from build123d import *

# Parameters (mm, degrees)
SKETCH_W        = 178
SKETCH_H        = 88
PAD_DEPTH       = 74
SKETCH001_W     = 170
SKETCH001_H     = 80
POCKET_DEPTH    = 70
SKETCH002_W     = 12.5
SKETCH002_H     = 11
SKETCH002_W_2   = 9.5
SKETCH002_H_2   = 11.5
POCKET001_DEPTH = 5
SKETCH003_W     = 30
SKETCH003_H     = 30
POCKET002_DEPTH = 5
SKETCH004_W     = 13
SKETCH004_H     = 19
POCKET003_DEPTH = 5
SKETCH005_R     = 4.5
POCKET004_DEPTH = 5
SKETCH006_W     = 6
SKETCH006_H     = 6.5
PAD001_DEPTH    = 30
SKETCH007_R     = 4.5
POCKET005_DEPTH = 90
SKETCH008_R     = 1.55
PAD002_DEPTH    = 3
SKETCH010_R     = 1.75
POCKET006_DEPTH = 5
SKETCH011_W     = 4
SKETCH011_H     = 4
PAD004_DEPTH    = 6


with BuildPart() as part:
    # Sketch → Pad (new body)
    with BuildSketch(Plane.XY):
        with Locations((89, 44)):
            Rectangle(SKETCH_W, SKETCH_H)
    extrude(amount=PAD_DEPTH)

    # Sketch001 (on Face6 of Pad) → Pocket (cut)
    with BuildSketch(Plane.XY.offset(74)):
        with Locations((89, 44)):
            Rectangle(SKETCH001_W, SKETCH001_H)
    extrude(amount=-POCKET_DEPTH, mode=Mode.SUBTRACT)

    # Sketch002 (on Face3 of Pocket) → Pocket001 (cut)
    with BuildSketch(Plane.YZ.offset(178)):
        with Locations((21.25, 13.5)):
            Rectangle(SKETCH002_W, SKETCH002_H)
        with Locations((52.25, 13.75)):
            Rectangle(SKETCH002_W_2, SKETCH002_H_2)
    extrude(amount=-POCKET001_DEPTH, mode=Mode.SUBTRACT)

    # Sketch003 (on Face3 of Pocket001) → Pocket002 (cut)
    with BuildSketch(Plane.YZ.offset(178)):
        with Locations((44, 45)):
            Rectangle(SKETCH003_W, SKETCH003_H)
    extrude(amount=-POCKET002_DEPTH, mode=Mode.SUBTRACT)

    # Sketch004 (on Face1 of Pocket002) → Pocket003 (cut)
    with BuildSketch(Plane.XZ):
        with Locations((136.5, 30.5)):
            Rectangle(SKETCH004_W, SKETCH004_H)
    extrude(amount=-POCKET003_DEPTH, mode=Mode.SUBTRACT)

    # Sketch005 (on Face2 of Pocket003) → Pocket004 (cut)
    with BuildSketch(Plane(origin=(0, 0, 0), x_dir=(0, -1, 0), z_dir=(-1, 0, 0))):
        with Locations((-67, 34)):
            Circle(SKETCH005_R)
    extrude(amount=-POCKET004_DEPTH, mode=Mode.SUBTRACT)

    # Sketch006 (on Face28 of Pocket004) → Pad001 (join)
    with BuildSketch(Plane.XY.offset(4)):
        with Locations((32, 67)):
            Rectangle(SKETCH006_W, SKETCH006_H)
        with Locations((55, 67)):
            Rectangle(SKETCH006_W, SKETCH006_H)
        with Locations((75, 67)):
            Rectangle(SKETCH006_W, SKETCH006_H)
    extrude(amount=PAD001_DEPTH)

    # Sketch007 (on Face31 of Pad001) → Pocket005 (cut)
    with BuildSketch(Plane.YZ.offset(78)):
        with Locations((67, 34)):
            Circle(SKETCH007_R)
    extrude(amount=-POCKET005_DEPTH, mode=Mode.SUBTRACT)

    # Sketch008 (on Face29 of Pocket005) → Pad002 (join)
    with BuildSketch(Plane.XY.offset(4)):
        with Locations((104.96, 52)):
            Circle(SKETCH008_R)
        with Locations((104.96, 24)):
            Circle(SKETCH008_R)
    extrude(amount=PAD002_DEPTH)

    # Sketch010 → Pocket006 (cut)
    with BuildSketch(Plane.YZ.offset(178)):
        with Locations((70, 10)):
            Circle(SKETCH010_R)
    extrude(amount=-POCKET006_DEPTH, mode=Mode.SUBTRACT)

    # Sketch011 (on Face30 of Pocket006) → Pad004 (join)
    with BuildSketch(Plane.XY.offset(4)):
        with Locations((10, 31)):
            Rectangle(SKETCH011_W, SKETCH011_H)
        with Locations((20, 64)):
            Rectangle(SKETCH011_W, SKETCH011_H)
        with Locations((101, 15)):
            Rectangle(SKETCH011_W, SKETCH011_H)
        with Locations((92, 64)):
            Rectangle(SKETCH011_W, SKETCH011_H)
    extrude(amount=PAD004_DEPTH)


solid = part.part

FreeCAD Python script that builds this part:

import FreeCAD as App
import Part
import Sketcher
Q = App.Units.Quantity

doc = App.newDocument("Part")
body = doc.addObject("PartDesign::Body", "Body")

# Sketch on XY plane
sketch1 = doc.addObject("Sketcher::SketchObject", "Sketch")
body.addObject(sketch1)
sketch1.AttachmentSupport = (doc.XY_Plane, [""])
sketch1.MapMode = "FlatFace"
sketch1.addGeometry([
    Part.LineSegment(App.Vector(0, 88, 0), App.Vector(0, 0, 0)),
    Part.LineSegment(App.Vector(0, 0, 0), App.Vector(178, 0, 0)),
    Part.LineSegment(App.Vector(178, 0, 0), App.Vector(178, 88, 0)),
    Part.LineSegment(App.Vector(178, 88, 0), App.Vector(0, 88, 0)),
], False)
sketch1.addConstraint([
    Sketcher.Constraint("Coincident", 0, 2, 1, 1),
    Sketcher.Constraint("Coincident", 1, 2, 2, 1),
    Sketcher.Constraint("Coincident", 2, 2, 3, 1),
    Sketcher.Constraint("Coincident", 3, 2, 0, 1),
    Sketcher.Constraint("Vertical", 0),
    Sketcher.Constraint("Horizontal", 1),
    Sketcher.Constraint("Vertical", 2),
    Sketcher.Constraint("Horizontal", 3),
    Sketcher.Constraint("Coincident", 0, 2, -1, 1),
    Sketcher.Constraint("DistanceX", 1, 1, 1, 2, Q("178 mm")),
    Sketcher.Constraint("DistanceY", 0, 2, 0, 1, Q("88 mm")),
])
pad1 = doc.addObject("PartDesign::Pad", "Pad")
body.addObject(pad1)
pad1.Profile = sketch1
pad1.Length = 74

# Sketch on XY plane
sketch2 = doc.addObject("Sketcher::SketchObject", "Sketch001")
body.addObject(sketch2)
sketch2.AttachmentSupport = (doc.XY_Plane, [""])
sketch2.MapMode = "FlatFace"
sketch2.AttachmentOffset = App.Placement(App.Vector(0, 0, 74), App.Rotation())
sketch2.addGeometry([
    Part.LineSegment(App.Vector(4, 84, 0), App.Vector(4, 4, 0)),
    Part.LineSegment(App.Vector(4, 4, 0), App.Vector(174, 4, 0)),
    Part.LineSegment(App.Vector(174, 4, 0), App.Vector(174, 84, 0)),
    Part.LineSegment(App.Vector(174, 84, 0), App.Vector(4, 84, 0)),
], False)
sketch2.addConstraint([
    Sketcher.Constraint("Coincident", 0, 2, 1, 1),
    Sketcher.Constraint("Coincident", 1, 2, 2, 1),
    Sketcher.Constraint("Coincident", 2, 2, 3, 1),
    Sketcher.Constraint("Coincident", 3, 2, 0, 1),
    Sketcher.Constraint("Vertical", 0),
    Sketcher.Constraint("Horizontal", 1),
    Sketcher.Constraint("Vertical", 2),
    Sketcher.Constraint("Horizontal", 3),
    Sketcher.Constraint("DistanceX", 1, 1, 1, 2, Q("170 mm")),
    Sketcher.Constraint("DistanceY", 0, 2, 0, 1, Q("80 mm")),
    Sketcher.Constraint("DistanceX", -1, 1, 0, 2, Q("4 mm")),
    Sketcher.Constraint("DistanceY", -1, 1, 0, 2, Q("4 mm")),
])
pocket1 = doc.addObject("PartDesign::Pocket", "Pocket")
body.addObject(pocket1)
pocket1.Profile = sketch2
pocket1.Length = 70

# Sketch on YZ plane
sketch3 = doc.addObject("Sketcher::SketchObject", "Sketch002")
body.addObject(sketch3)
sketch3.AttachmentSupport = (doc.YZ_Plane, [""])
sketch3.MapMode = "FlatFace"
sketch3.AttachmentOffset = App.Placement(App.Vector(0, 0, 178), App.Rotation())
sketch3.addGeometry([
    Part.LineSegment(App.Vector(15, 19, 0), App.Vector(15, 8, 0)),  # 0
    Part.LineSegment(App.Vector(15, 8, 0), App.Vector(28, 8, 0)),  # 1
    Part.LineSegment(App.Vector(28, 8, 0), App.Vector(28, 19, 0)),  # 2
    Part.LineSegment(App.Vector(28, 19, 0), App.Vector(15, 19, 0)),  # 3
    Part.LineSegment(App.Vector(48, 20, 0), App.Vector(48, 8, 0)),  # 4
    Part.LineSegment(App.Vector(48, 8, 0), App.Vector(57, 8, 0)),  # 5
    Part.LineSegment(App.Vector(57, 8, 0), App.Vector(57, 20, 0)),  # 6
    Part.LineSegment(App.Vector(57, 20, 0), App.Vector(48, 20, 0)),  # 7
], False)
sketch3.addConstraint([
    Sketcher.Constraint("Coincident", 0, 2, 1, 1),
    Sketcher.Constraint("Coincident", 1, 2, 2, 1),
    Sketcher.Constraint("Coincident", 2, 2, 3, 1),
    Sketcher.Constraint("Coincident", 3, 2, 0, 1),
    Sketcher.Constraint("Coincident", 4, 2, 5, 1),
    Sketcher.Constraint("Coincident", 5, 2, 6, 1),
    Sketcher.Constraint("Coincident", 6, 2, 7, 1),
    Sketcher.Constraint("Coincident", 7, 2, 4, 1),
    Sketcher.Constraint("Vertical", 0),
    Sketcher.Constraint("Horizontal", 1),
    Sketcher.Constraint("Vertical", 2),
    Sketcher.Constraint("Horizontal", 3),
    Sketcher.Constraint("Vertical", 4),
    Sketcher.Constraint("Horizontal", 5),
    Sketcher.Constraint("Vertical", 6),
    Sketcher.Constraint("Horizontal", 7),
    Sketcher.Constraint("Horizontal", 1, 2, 4, 2),
    Sketcher.Constraint("DistanceY", 0, 2, 0, 1, Q("11 mm")),
    Sketcher.Constraint("DistanceX", 1, 1, 1, 2, Q("12.5 mm")),
    Sketcher.Constraint("DistanceX", 5, 1, 5, 2, Q("9.5 mm")),
    Sketcher.Constraint("DistanceY", 4, 2, 4, 1, Q("11.5 mm")),
    Sketcher.Constraint("DistanceX", -1, 1, 0, 2, Q("15 mm")),
    Sketcher.Constraint("DistanceY", -1, 1, 0, 2, Q("8 mm")),
    Sketcher.Constraint("DistanceX", -1, 1, 5, 2, Q("57 mm")),
])
pocket2 = doc.addObject("PartDesign::Pocket", "Pocket001")
body.addObject(pocket2)
pocket2.Profile = sketch3
pocket2.Length = 5

# Sketch on YZ plane
sketch4 = doc.addObject("Sketcher::SketchObject", "Sketch003")
body.addObject(sketch4)
sketch4.AttachmentSupport = (doc.YZ_Plane, [""])
sketch4.MapMode = "FlatFace"
sketch4.AttachmentOffset = App.Placement(App.Vector(0, 0, 178), App.Rotation())
sketch4.addGeometry([
    Part.LineSegment(App.Vector(29, 60, 0), App.Vector(29, 30, 0)),
    Part.LineSegment(App.Vector(29, 30, 0), App.Vector(59, 30, 0)),
    Part.LineSegment(App.Vector(59, 30, 0), App.Vector(59, 60, 0)),
    Part.LineSegment(App.Vector(59, 60, 0), App.Vector(29, 60, 0)),
], False)
sketch4.addConstraint([
    Sketcher.Constraint("Coincident", 0, 2, 1, 1),
    Sketcher.Constraint("Coincident", 1, 2, 2, 1),
    Sketcher.Constraint("Coincident", 2, 2, 3, 1),
    Sketcher.Constraint("Coincident", 3, 2, 0, 1),
    Sketcher.Constraint("Vertical", 0),
    Sketcher.Constraint("Horizontal", 1),
    Sketcher.Constraint("Vertical", 2),
    Sketcher.Constraint("Horizontal", 3),
    Sketcher.Constraint("Equal", 3, 0),
    Sketcher.Constraint("DistanceX", 1, 1, 1, 2, Q("30 mm")),
    Sketcher.Constraint("DistanceX", -1, 1, 0, 2, Q("29 mm")),
    Sketcher.Constraint("DistanceY", -1, 1, 0, 2, Q("30 mm")),
])
pocket3 = doc.addObject("PartDesign::Pocket", "Pocket002")
body.addObject(pocket3)
pocket3.Profile = sketch4
pocket3.Length = 5

# Sketch on XZ plane
sketch5 = doc.addObject("Sketcher::SketchObject", "Sketch004")
body.addObject(sketch5)
sketch5.AttachmentSupport = (doc.XZ_Plane, [""])
sketch5.MapMode = "FlatFace"
sketch5.addGeometry([
    Part.LineSegment(App.Vector(130, 40, 0), App.Vector(130, 21, 0)),
    Part.LineSegment(App.Vector(130, 21, 0), App.Vector(143, 21, 0)),
    Part.LineSegment(App.Vector(143, 21, 0), App.Vector(143, 40, 0)),
    Part.LineSegment(App.Vector(143, 40, 0), App.Vector(130, 40, 0)),
], False)
sketch5.addConstraint([
    Sketcher.Constraint("Coincident", 0, 2, 1, 1),
    Sketcher.Constraint("Coincident", 1, 2, 2, 1),
    Sketcher.Constraint("Coincident", 2, 2, 3, 1),
    Sketcher.Constraint("Coincident", 3, 2, 0, 1),
    Sketcher.Constraint("Vertical", 0),
    Sketcher.Constraint("Horizontal", 1),
    Sketcher.Constraint("Vertical", 2),
    Sketcher.Constraint("Horizontal", 3),
    Sketcher.Constraint("DistanceX", 1, 1, 1, 2, Q("13 mm")),
    Sketcher.Constraint("DistanceY", 0, 2, 0, 1, Q("19 mm")),
    Sketcher.Constraint("DistanceX", -1, 1, 0, 2, Q("130 mm")),
    Sketcher.Constraint("DistanceY", -1, 1, 0, 2, Q("21 mm")),
])
pocket4 = doc.addObject("PartDesign::Pocket", "Pocket003")
body.addObject(pocket4)
pocket4.Profile = sketch5
pocket4.Length = 5

# Sketch on YZ plane
sketch6 = doc.addObject("Sketcher::SketchObject", "Sketch005")
body.addObject(sketch6)
sketch6.AttachmentSupport = (doc.YZ_Plane, [""])
sketch6.MapMode = "FlatFace"
sketch6.addGeometry(Part.Circle(App.Vector(67, 34, 0), App.Vector(0, 0, 1), 4.5), False)
sketch6.addConstraint([
    Sketcher.Constraint("Diameter", 0, Q("9 mm")),
    Sketcher.Constraint("DistanceX", -1, 1, 0, 3, Q("67 mm")),
    Sketcher.Constraint("DistanceY", -1, 1, 0, 3, Q("34 mm")),
])
pocket5 = doc.addObject("PartDesign::Pocket", "Pocket004")
body.addObject(pocket5)
pocket5.Profile = sketch6
pocket5.Length = 5
pocket5.Reversed = True

# Sketch on XY plane
sketch7 = doc.addObject("Sketcher::SketchObject", "Sketch006")
body.addObject(sketch7)
sketch7.AttachmentSupport = (doc.XY_Plane, [""])
sketch7.MapMode = "FlatFace"
sketch7.AttachmentOffset = App.Placement(App.Vector(0, 0, 4), App.Rotation())
sketch7.addGeometry([
    Part.LineSegment(App.Vector(29, 70, 0), App.Vector(29, 64, 0)),  # 0
    Part.LineSegment(App.Vector(29, 64, 0), App.Vector(35, 64, 0)),  # 1
    Part.LineSegment(App.Vector(35, 64, 0), App.Vector(35, 70, 0)),  # 2
    Part.LineSegment(App.Vector(35, 70, 0), App.Vector(29, 70, 0)),  # 3
    Part.LineSegment(App.Vector(52, 70, 0), App.Vector(52, 64, 0)),  # 4
    Part.LineSegment(App.Vector(52, 64, 0), App.Vector(58, 64, 0)),  # 5
    Part.LineSegment(App.Vector(58, 64, 0), App.Vector(58, 70, 0)),  # 6
    Part.LineSegment(App.Vector(58, 70, 0), App.Vector(52, 70, 0)),  # 7
    Part.LineSegment(App.Vector(72, 70, 0), App.Vector(72, 64, 0)),  # 8
    Part.LineSegment(App.Vector(72, 64, 0), App.Vector(78, 64, 0)),  # 9
    Part.LineSegment(App.Vector(78, 64, 0), App.Vector(78, 70, 0)),  # 10
    Part.LineSegment(App.Vector(78, 70, 0), App.Vector(72, 70, 0)),  # 11
], False)
sketch7.addConstraint([
    Sketcher.Constraint("Coincident", 0, 2, 1, 1),
    Sketcher.Constraint("Coincident", 1, 2, 2, 1),
    Sketcher.Constraint("Coincident", 2, 2, 3, 1),
    Sketcher.Constraint("Coincident", 3, 2, 0, 1),
    Sketcher.Constraint("Coincident", 4, 2, 5, 1),
    Sketcher.Constraint("Coincident", 5, 2, 6, 1),
    Sketcher.Constraint("Coincident", 6, 2, 7, 1),
    Sketcher.Constraint("Coincident", 7, 2, 4, 1),
    Sketcher.Constraint("Coincident", 8, 2, 9, 1),
    Sketcher.Constraint("Coincident", 9, 2, 10, 1),
    Sketcher.Constraint("Coincident", 10, 2, 11, 1),
    Sketcher.Constraint("Coincident", 11, 2, 8, 1),
    Sketcher.Constraint("Vertical", 0),
    Sketcher.Constraint("Horizontal", 1),
    Sketcher.Constraint("Vertical", 2),
    Sketcher.Constraint("Horizontal", 3),
    Sketcher.Constraint("Vertical", 4),
    Sketcher.Constraint("Horizontal", 5),
    Sketcher.Constraint("Vertical", 6),
    Sketcher.Constraint("Horizontal", 7),
    Sketcher.Constraint("Vertical", 8),
    Sketcher.Constraint("Horizontal", 9),
    Sketcher.Constraint("Vertical", 10),
    Sketcher.Constraint("Horizontal", 11),
    Sketcher.Constraint("Horizontal", 1, 2, 4, 2),
    Sketcher.Constraint("Horizontal", 3, 2, 6, 2),
    Sketcher.Constraint("Horizontal", 5, 2, 8, 2),
    Sketcher.Constraint("Horizontal", 7, 2, 10, 2),
    Sketcher.Constraint("Equal", 3, 5),
    Sketcher.Constraint("Equal", 7, 9),
    Sketcher.Constraint("DistanceX", 1, 1, 1, 2, Q("6 mm")),
    Sketcher.Constraint("DistanceY", 0, 2, 0, 1, Q("6.5 mm")),
    Sketcher.Constraint("DistanceX", -1, 1, 0, 2, Q("29 mm")),
    Sketcher.Constraint("DistanceX", -1, 1, 4, 2, Q("52 mm")),
    Sketcher.Constraint("DistanceX", -1, 1, 8, 2, Q("72 mm")),
    Sketcher.Constraint("DistanceY", -1, 1, 0, 2, Q("63.75 mm")),
])
pad2 = doc.addObject("PartDesign::Pad", "Pad001")
body.addObject(pad2)
pad2.Profile = sketch7
pad2.Length = 30

# Sketch on YZ plane
sketch8 = doc.addObject("Sketcher::SketchObject", "Sketch007")
body.addObject(sketch8)
sketch8.AttachmentSupport = (doc.YZ_Plane, [""])
sketch8.MapMode = "FlatFace"
sketch8.AttachmentOffset = App.Placement(App.Vector(0, 0, 78), App.Rotation())
sketch8.addGeometry(Part.Circle(App.Vector(67, 34, 0), App.Vector(0, 0, 1), 4.5), False)
sketch8.addConstraint([
    Sketcher.Constraint("Diameter", 0, Q("9 mm")),
    Sketcher.Constraint("DistanceX", -1, 1, 0, 3, Q("67 mm")),
    Sketcher.Constraint("DistanceY", -1, 1, 0, 3, Q("34 mm")),
])
pocket6 = doc.addObject("PartDesign::Pocket", "Pocket005")
body.addObject(pocket6)
pocket6.Profile = sketch8
pocket6.Length = 90

# Sketch on XY plane
sketch9 = doc.addObject("Sketcher::SketchObject", "Sketch008")
body.addObject(sketch9)
sketch9.AttachmentSupport = (doc.XY_Plane, [""])
sketch9.MapMode = "FlatFace"
sketch9.AttachmentOffset = App.Placement(App.Vector(0, 0, 4), App.Rotation())
sketch9.addGeometry([
    Part.Circle(App.Vector(105, 52, 0), App.Vector(0, 0, 1), 1.6),
    Part.Circle(App.Vector(105, 24, 0), App.Vector(0, 0, 1), 1.6),
], False)
sketch9.addConstraint([
    Sketcher.Constraint("Equal", 0, 1),
    Sketcher.Constraint("Vertical", 0, 3, 1, 3),
    Sketcher.Constraint("Diameter", 0, Q("3.1 mm")),
    Sketcher.Constraint("DistanceY", -1, 1, 0, 3, Q("52 mm")),
    Sketcher.Constraint("DistanceY", -1, 1, 1, 3, Q("24 mm")),
    Sketcher.Constraint("DistanceX", -1, 1, 0, 3, Q("104.96 mm")),
])
pad3 = doc.addObject("PartDesign::Pad", "Pad002")
body.addObject(pad3)
pad3.Profile = sketch9
pad3.Length = 3

# Sketch on YZ plane
sketch10 = doc.addObject("Sketcher::SketchObject", "Sketch009")
body.addObject(sketch10)
sketch10.AttachmentSupport = (doc.YZ_Plane, [""])
sketch10.MapMode = "FlatFace"
sketch10.AttachmentOffset = App.Placement(App.Vector(0, 0, 178), App.Rotation())
sketch10.addGeometry(Part.Circle(App.Vector(70, 10, 0), App.Vector(0, 0, 1), 1.8), False)
sketch10.addConstraint([
    Sketcher.Constraint("Diameter", 0, Q("3.5 mm")),
    Sketcher.Constraint("DistanceX", -1, 1, 0, 3, Q("70 mm")),
    Sketcher.Constraint("DistanceY", -1, 1, 0, 3, Q("10 mm")),
])
pocket7 = doc.addObject("PartDesign::Pocket", "Pocket006")
body.addObject(pocket7)
pocket7.Profile = sketch10
pocket7.Length = 5

# Sketch on XY plane
sketch11 = doc.addObject("Sketcher::SketchObject", "Sketch010")
body.addObject(sketch11)
sketch11.AttachmentSupport = (doc.XY_Plane, [""])
sketch11.MapMode = "FlatFace"
sketch11.AttachmentOffset = App.Placement(App.Vector(0, 0, 4), App.Rotation())
sketch11.addGeometry([
    Part.LineSegment(App.Vector(8, 33, 0), App.Vector(8, 29, 0)),  # 0
    Part.LineSegment(App.Vector(8, 29, 0), App.Vector(12, 29, 0)),  # 1
    Part.LineSegment(App.Vector(12, 29, 0), App.Vector(12, 33, 0)),  # 2
    Part.LineSegment(App.Vector(12, 33, 0), App.Vector(8, 33, 0)),  # 3
    Part.LineSegment(App.Vector(18, 66, 0), App.Vector(18, 62, 0)),  # 4
    Part.LineSegment(App.Vector(18, 62, 0), App.Vector(22, 62, 0)),  # 5
    Part.LineSegment(App.Vector(22, 62, 0), App.Vector(22, 66, 0)),  # 6
    Part.LineSegment(App.Vector(22, 66, 0), App.Vector(18, 66, 0)),  # 7
    Part.LineSegment(App.Vector(99, 17, 0), App.Vector(99, 13, 0)),  # 8
    Part.LineSegment(App.Vector(99, 13, 0), App.Vector(103, 13, 0)),  # 9
    Part.LineSegment(App.Vector(103, 13, 0), App.Vector(103, 17, 0)),  # 10
    Part.LineSegment(App.Vector(103, 17, 0), App.Vector(99, 17, 0)),  # 11
    Part.LineSegment(App.Vector(90, 66, 0), App.Vector(90, 62, 0)),  # 12
    Part.LineSegment(App.Vector(90, 62, 0), App.Vector(94, 62, 0)),  # 13
    Part.LineSegment(App.Vector(94, 62, 0), App.Vector(94, 66, 0)),  # 14
    Part.LineSegment(App.Vector(94, 66, 0), App.Vector(90, 66, 0)),  # 15
], False)
sketch11.addConstraint([
    Sketcher.Constraint("Coincident", 0, 2, 1, 1),
    Sketcher.Constraint("Coincident", 1, 2, 2, 1),
    Sketcher.Constraint("Coincident", 2, 2, 3, 1),
    Sketcher.Constraint("Coincident", 3, 2, 0, 1),
    Sketcher.Constraint("Coincident", 4, 2, 5, 1),
    Sketcher.Constraint("Coincident", 5, 2, 6, 1),
    Sketcher.Constraint("Coincident", 6, 2, 7, 1),
    Sketcher.Constraint("Coincident", 7, 2, 4, 1),
    Sketcher.Constraint("Coincident", 8, 2, 9, 1),
    Sketcher.Constraint("Coincident", 9, 2, 10, 1),
    Sketcher.Constraint("Coincident", 10, 2, 11, 1),
    Sketcher.Constraint("Coincident", 11, 2, 8, 1),
    Sketcher.Constraint("Coincident", 12, 2, 13, 1),
    Sketcher.Constraint("Coincident", 13, 2, 14, 1),
    Sketcher.Constraint("Coincident", 14, 2, 15, 1),
    Sketcher.Constraint("Coincident", 15, 2, 12, 1),
    Sketcher.Constraint("Vertical", 0),
    Sketcher.Constraint("Horizontal", 1),
    Sketcher.Constraint("Vertical", 2),
    Sketcher.Constraint("Horizontal", 3),
    Sketcher.Constraint("Vertical", 4),
    Sketcher.Constraint("Horizontal", 5),
    Sketcher.Constraint("Vertical", 6),
    Sketcher.Constraint("Horizontal", 7),
    Sketcher.Constraint("Vertical", 8),
    Sketcher.Constraint("Horizontal", 9),
    Sketcher.Constraint("Vertical", 10),
    Sketcher.Constraint("Horizontal", 11),
    Sketcher.Constraint("Vertical", 12),
    Sketcher.Constraint("Horizontal", 13),
    Sketcher.Constraint("Vertical", 14),
    Sketcher.Constraint("Horizontal", 15),
    Sketcher.Constraint("Horizontal", 5, 2, 12, 2),
    Sketcher.Constraint("Horizontal", 7, 2, 14, 2),
    Sketcher.Constraint("Equal", 3, 5),
    Sketcher.Constraint("Equal", 7, 9),
    Sketcher.Constraint("Equal", 11, 13),
    Sketcher.Constraint("Equal", 15, 0),
    Sketcher.Constraint("Equal", 2, 4),
    Sketcher.Constraint("Equal", 6, 8),
    Sketcher.Constraint("DistanceX", 1, 1, 1, 2, Q("4 mm")),
    Sketcher.Constraint("DistanceX", -1, 1, 0, 2, Q("8 mm")),
    Sketcher.Constraint("DistanceY", -1, 1, 0, 2, Q("29 mm")),
    Sketcher.Constraint("DistanceX", -1, 1, 4, 2, Q("18 mm")),
    Sketcher.Constraint("DistanceY", -1, 1, 4, 2, Q("62 mm")),
    Sketcher.Constraint("DistanceX", -1, 1, 8, 2, Q("99 mm")),
    Sketcher.Constraint("DistanceY", -1, 1, 8, 2, Q("13 mm")),
    Sketcher.Constraint("DistanceX", -1, 1, 12, 2, Q("90 mm")),
])
pad4 = doc.addObject("PartDesign::Pad", "Pad003")
body.addObject(pad4)
pad4.Profile = sketch11
pad4.Length = 6

doc.recompute()
